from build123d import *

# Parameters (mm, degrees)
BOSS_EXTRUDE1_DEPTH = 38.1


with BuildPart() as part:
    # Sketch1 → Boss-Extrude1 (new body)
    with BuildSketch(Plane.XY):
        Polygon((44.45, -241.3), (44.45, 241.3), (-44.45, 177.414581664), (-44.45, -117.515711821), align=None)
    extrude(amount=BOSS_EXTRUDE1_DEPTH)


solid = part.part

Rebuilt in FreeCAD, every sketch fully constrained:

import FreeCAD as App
import Part
import Sketcher
Q = App.Units.Quantity


def add_polygon(sketch, points):
    """Adds a closed chain of lines whose ends are joined by coincident constraints."""
    first, n = sketch.GeometryCount, len(points)
    for a, b in zip(points, points[1:] + points[:1]):
        sketch.addGeometry(Part.LineSegment(App.Vector(*a, 0), App.Vector(*b, 0)), False)
    for i in range(n):
        sketch.addConstraint(Sketcher.Constraint("Coincident", first + i, 2, first + (i + 1) % n, 1))

doc = App.newDocument("Part")
body = doc.addObject("PartDesign::Body", "Body")

# Sketch on XY plane
sketch1 = body.newObject("Sketcher::SketchObject", "Sketch")
sketch1.AttachmentSupport = (doc.getObject("XY_Plane"), [""])
sketch1.MapMode = "FlatFace"
add_polygon(sketch1, [(44, -241), (44, 241), (-44, 177), (-44, -118)])  # lines 0-3
sketch1.addConstraint([
    Sketcher.Constraint("Vertical", 0),
    Sketcher.Constraint("Vertical", 2),
    Sketcher.Constraint("DistanceY", 0, 1, 0, 2, Q("19 in")),
    Sketcher.Constraint("Distance", 3, Q("6 in")),
    Sketcher.Constraint("DistanceY", -1, 1, 0, 2, Q("9.5 in")),
    Sketcher.Constraint("DistanceX", 1, 2, 0, 2, Q("3.5 in")),
    Sketcher.Constraint("Distance", 1, Q("4.31 in")),
    Sketcher.Constraint("DistanceX", -1, 1, 0, 2, Q("1.75 in")),
])
pad1 = body.newObject("PartDesign::Pad", "Pad")
pad1.Profile = sketch1
pad1.Length = Q("1.5 in")

doc.recompute()
